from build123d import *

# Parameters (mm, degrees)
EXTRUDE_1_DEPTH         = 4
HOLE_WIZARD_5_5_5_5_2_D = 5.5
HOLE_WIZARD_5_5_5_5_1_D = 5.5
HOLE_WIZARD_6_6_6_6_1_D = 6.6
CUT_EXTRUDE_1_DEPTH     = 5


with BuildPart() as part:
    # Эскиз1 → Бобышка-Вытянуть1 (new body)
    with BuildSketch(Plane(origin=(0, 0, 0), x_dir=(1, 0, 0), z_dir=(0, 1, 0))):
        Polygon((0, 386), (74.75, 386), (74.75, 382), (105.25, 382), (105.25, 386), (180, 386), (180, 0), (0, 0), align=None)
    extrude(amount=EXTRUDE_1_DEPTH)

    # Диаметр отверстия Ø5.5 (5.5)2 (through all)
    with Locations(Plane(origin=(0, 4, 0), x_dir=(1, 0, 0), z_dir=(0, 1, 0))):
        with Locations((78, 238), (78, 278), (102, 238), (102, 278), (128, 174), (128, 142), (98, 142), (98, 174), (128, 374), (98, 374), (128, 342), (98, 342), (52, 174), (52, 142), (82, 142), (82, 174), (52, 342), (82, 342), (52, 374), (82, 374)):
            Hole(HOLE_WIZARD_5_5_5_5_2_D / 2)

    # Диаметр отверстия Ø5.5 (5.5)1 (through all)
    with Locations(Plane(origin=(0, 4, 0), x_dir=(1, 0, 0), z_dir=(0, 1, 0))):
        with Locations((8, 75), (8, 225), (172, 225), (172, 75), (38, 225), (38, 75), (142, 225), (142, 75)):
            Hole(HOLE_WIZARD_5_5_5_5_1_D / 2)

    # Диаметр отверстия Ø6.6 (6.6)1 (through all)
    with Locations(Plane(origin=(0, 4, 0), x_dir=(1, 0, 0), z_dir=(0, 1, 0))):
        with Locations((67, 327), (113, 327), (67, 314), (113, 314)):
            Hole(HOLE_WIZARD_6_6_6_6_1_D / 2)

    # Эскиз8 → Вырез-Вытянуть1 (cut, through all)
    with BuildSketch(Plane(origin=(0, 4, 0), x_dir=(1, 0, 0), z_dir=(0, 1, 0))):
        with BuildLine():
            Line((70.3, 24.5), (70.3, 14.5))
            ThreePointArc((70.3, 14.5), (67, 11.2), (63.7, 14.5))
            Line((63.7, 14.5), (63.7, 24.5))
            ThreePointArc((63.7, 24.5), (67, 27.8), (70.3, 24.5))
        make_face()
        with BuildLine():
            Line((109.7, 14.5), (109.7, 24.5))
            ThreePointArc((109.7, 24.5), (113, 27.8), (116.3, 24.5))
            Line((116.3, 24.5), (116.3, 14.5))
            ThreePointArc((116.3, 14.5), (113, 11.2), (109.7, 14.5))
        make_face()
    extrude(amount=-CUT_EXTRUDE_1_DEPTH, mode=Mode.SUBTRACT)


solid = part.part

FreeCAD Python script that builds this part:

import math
import FreeCAD as App
import Part
import Sketcher

V = App.Vector


def add_polygon(sketch, points):
    """Adds a closed chain of lines whose ends are joined by coincident constraints."""
    first, n = sketch.GeometryCount, len(points)
    for a, b in zip(points, points[1:] + points[:1]):
        sketch.addGeometry(Part.LineSegment(App.Vector(*a, 0), App.Vector(*b, 0)), False)
    for i in range(n):
        sketch.addConstraint(Sketcher.Constraint("Coincident", first + i, 2, first + (i + 1) % n, 1))

doc = App.newDocument("Part")
body = doc.addObject("PartDesign::Body", "Body")

# Sketch on XZ plane
sketch1 = body.newObject("Sketcher::SketchObject", "Sketch")
sketch1.AttachmentSupport = (doc.getObject("XZ_Plane"), [""])
sketch1.MapMode = "FlatFace"
add_polygon(sketch1, [(74.8, -386), (0, -386), (0, 0), (180, 0), (180, -386), (105.2, -386), (105.2, -382), (74.8, -382)])  # lines 0-7
sketch1.addConstraint([
    Sketcher.Constraint("Horizontal", 0),
    Sketcher.Constraint("Vertical", 1),
    Sketcher.Constraint("Horizontal", 2),
    Sketcher.Constraint("Vertical", 3),
    Sketcher.Constraint("Horizontal", 4),
    Sketcher.Constraint("Vertical", 5),
    Sketcher.Constraint("Horizontal", 6),
    Sketcher.Constraint("Vertical", 7),
    Sketcher.Constraint("Coincident", 1, 2, -1, 1),
    Sketcher.Constraint("Horizontal", 0, 2, 3, 2),
    Sketcher.Constraint("Equal", 0, 4),
    Sketcher.Constraint("DistanceX", 2, 1, 2, 2, 180.0),
    Sketcher.Constraint("DistanceY", 1, 1, 1, 2, 386.0),
    Sketcher.Constraint("DistanceY", 5, 1, 5, 2, 4.0),
    Sketcher.Constraint("DistanceX", 6, 2, 6, 1, 30.5),
])
pad1 = body.newObject("PartDesign::Pad", "Pad")
pad1.Profile = sketch1
pad1.Length = 4
pad1.Reversed = True

# Sketch on XZ plane
sketch2 = body.newObject("Sketcher::SketchObject", "Sketch001")
sketch2.AttachmentSupport = (doc.getObject("XZ_Plane"), [""])
sketch2.MapMode = "FlatFace"
sketch2.AttachmentOffset = App.Placement(V(0, 0, -4), App.Rotation())
sketch2.addGeometry([
    Part.Circle(V(78, -238, 0), V(0, 0, 1), 2.8),  # 0
    Part.Circle(V(78, -278, 0), V(0, 0, 1), 2.8),  # 1
    Part.Circle(V(102, -238, 0), V(0, 0, 1), 2.8),  # 2
    Part.Circle(V(102, -278, 0), V(0, 0, 1), 2.8),  # 3
    Part.Circle(V(128, -174, 0), V(0, 0, 1), 2.8),  # 4
    Part.Circle(V(128, -142, 0), V(0, 0, 1), 2.8),  # 5
    Part.Circle(V(98, -142, 0), V(0, 0, 1), 2.8),  # 6
    Part.Circle(V(98, -174, 0), V(0, 0, 1), 2.8),  # 7
    Part.Circle(V(128, -374, 0), V(0, 0, 1), 2.8),  # 8
    Part.Circle(V(98, -374, 0), V(0, 0, 1), 2.8),  # 9
    Part.Circle(V(128, -342, 0), V(0, 0, 1), 2.8),  # 10
    Part.Circle(V(98, -342, 0), V(0, 0, 1), 2.8),  # 11
    Part.Circle(V(52, -174, 0), V(0, 0, 1), 2.8),  # 12
    Part.Circle(V(52, -142, 0), V(0, 0, 1), 2.8),  # 13
    Part.Circle(V(82, -142, 0), V(0, 0, 1), 2.8),  # 14
    Part.Circle(V(82, -174, 0), V(0, 0, 1), 2.8),  # 15
    Part.Circle(V(52, -342, 0), V(0, 0, 1), 2.8),  # 16
    Part.Circle(V(82, -342, 0), V(0, 0, 1), 2.8),  # 17
    Part.Circle(V(52, -374, 0), V(0, 0, 1), 2.8),  # 18
    Part.Circle(V(82, -374, 0), V(0, 0, 1), 2.8),  # 19
], False)
sketch2.addConstraint([
    Sketcher.Constraint("Equal", 0, 1),
    Sketcher.Constraint("Equal", 1, 2),
    Sketcher.Constraint("Equal", 2, 3),
    Sketcher.Constraint("Equal", 3, 4),
    Sketcher.Constraint("Equal", 4, 5),
    Sketcher.Constraint("Equal", 5, 6),
    Sketcher.Constraint("Equal", 6, 7),
    Sketcher.Constraint("Equal", 7, 8),
    Sketcher.Constraint("Equal", 8, 9),
    Sketcher.Constraint("Equal", 9, 10),
    Sketcher.Constraint("Equal", 10, 11),
    Sketcher.Constraint("Equal", 11, 12),
    Sketcher.Constraint("Equal", 12, 13),
    Sketcher.Constraint("Equal", 13, 14),
    Sketcher.Constraint("Equal", 14, 15),
    Sketcher.Constraint("Equal", 15, 16),
    Sketcher.Constraint("Equal", 16, 17),
    Sketcher.Constraint("Equal", 17, 18),
    Sketcher.Constraint("Equal", 18, 19),
    Sketcher.Constraint("Horizontal", 0, 3, 2, 3),
    Sketcher.Constraint("Horizontal", 1, 3, 3, 3),
    Sketcher.Constraint("Horizontal", 5, 3, 6, 3),
    Sketcher.Constraint("Horizontal", 4, 3, 7, 3),
    Sketcher.Constraint("Horizontal", 8, 3, 9, 3),
    Sketcher.Constraint("Horizontal", 10, 3, 11, 3),
    Sketcher.Constraint("Horizontal", 7, 3, 12, 3),
    Sketcher.Constraint("Horizontal", 6, 3, 13, 3),
    Sketcher.Constraint("Horizontal", 13, 3, 14, 3),
    Sketcher.Constraint("Horizontal", 12, 3, 15, 3),
    Sketcher.Constraint("Horizontal", 11, 3, 16, 3),
    Sketcher.Constraint("Horizontal", 16, 3, 17, 3),
    Sketcher.Constraint("Horizontal", 9, 3, 18, 3),
    Sketcher.Constraint("Horizontal", 18, 3, 19, 3),
    Sketcher.Constraint("Vertical", 0, 3, 1, 3),
    Sketcher.Constraint("Vertical", 2, 3, 3, 3),
    Sketcher.Constraint("Vertical", 4, 3, 5, 3),
    Sketcher.Constraint("Vertical", 6, 3, 7, 3),
    Sketcher.Constraint("Vertical", 5, 3, 8, 3),
    Sketcher.Constraint("Vertical", 7, 3, 9, 3),
    Sketcher.Constraint("Vertical", 8, 3, 10, 3),
    Sketcher.Constraint("Vertical", 9, 3, 11, 3),
    Sketcher.Constraint("Vertical", 12, 3, 13, 3),
    Sketcher.Constraint("Vertical", 14, 3, 15, 3),
    Sketcher.Constraint("Vertical", 13, 3, 16, 3),
    Sketcher.Constraint("Vertical", 15, 3, 17, 3),
    Sketcher.Constraint("Vertical", 16, 3, 18, 3),
    Sketcher.Constraint("Vertical", 17, 3, 19, 3),
    Sketcher.Constraint("Diameter", 0, 5.5),
    Sketcher.Constraint("DistanceX", -1, 1, 0, 3, 78.0),
    Sketcher.Constraint("DistanceY", 0, 3, -1, 1, 238.0),
    Sketcher.Constraint("DistanceY", 1, 3, -1, 1, 278.0),
    Sketcher.Constraint("DistanceX", -1, 1, 2, 3, 102.0),
    Sketcher.Constraint("DistanceX", -1, 1, 4, 3, 128.0),
    Sketcher.Constraint("DistanceY", 4, 3, -1, 1, 174.0),
    Sketcher.Constraint("DistanceY", 5, 3, -1, 1, 142.0),
    Sketcher.Constraint("DistanceX", -1, 1, 6, 3, 98.0),
    Sketcher.Constraint("DistanceY", 8, 3, -1, 1, 374.0),
    Sketcher.Constraint("DistanceY", 10, 3, -1, 1, 342.0),
    Sketcher.Constraint("DistanceX", -1, 1, 12, 3, 52.0),
    Sketcher.Constraint("DistanceX", -1, 1, 14, 3, 82.0),
])
doc.recompute()
hole = body.newObject("PartDesign::Hole", "Hole")
hole.Profile = sketch2
hole.ThreadType = "None"
hole.Diameter = 5.5
hole.DepthType = "ThroughAll"
hole.Reversed = True

# Sketch on XZ plane
sketch3 = body.newObject("Sketcher::SketchObject", "Sketch002")
sketch3.AttachmentSupport = (doc.getObject("XZ_Plane"), [""])
sketch3.MapMode = "FlatFace"
sketch3.AttachmentOffset = App.Placement(V(0, 0, -4), App.Rotation())
sketch3.addGeometry([
    Part.Circle(V(8, -75, 0), V(0, 0, 1), 2.8),  # 0
    Part.Circle(V(8, -225, 0), V(0, 0, 1), 2.8),  # 1
    Part.Circle(V(172, -225, 0), V(0, 0, 1), 2.8),  # 2
    Part.Circle(V(172, -75, 0), V(0, 0, 1), 2.8),  # 3
    Part.Circle(V(38, -225, 0), V(0, 0, 1), 2.8),  # 4
    Part.Circle(V(38, -75, 0), V(0, 0, 1), 2.8),  # 5
    Part.Circle(V(142, -225, 0), V(0, 0, 1), 2.8),  # 6
    Part.Circle(V(142, -75, 0), V(0, 0, 1), 2.8),  # 7
], False)
sketch3.addConstraint([
    Sketcher.Constraint("Equal", 0, 1),
    Sketcher.Constraint("Equal", 1, 2),
    Sketcher.Constraint("Equal", 2, 3),
    Sketcher.Constraint("Equal", 3, 4),
    Sketcher.Constraint("Equal", 4, 5),
    Sketcher.Constraint("Equal", 5, 6),
    Sketcher.Constraint("Equal", 6, 7),
    Sketcher.Constraint("Horizontal", 1, 3, 2, 3),
    Sketcher.Constraint("Horizontal", 0, 3, 3, 3),
    Sketcher.Constraint("Horizontal", 2, 3, 4, 3),
    Sketcher.Constraint("Horizontal", 3, 3, 5, 3),
    Sketcher.Constraint("Horizontal", 4, 3, 6, 3),
    Sketcher.Constraint("Horizontal", 5, 3, 7, 3),
    Sketcher.Constraint("Vertical", 0, 3, 1, 3),
    Sketcher.Constraint("Vertical", 2, 3, 3, 3),
    Sketcher.Constraint("Vertical", 4, 3, 5, 3),
    Sketcher.Constraint("Vertical", 6, 3, 7, 3),
    Sketcher.Constraint("Diameter", 0, 5.5),
    Sketcher.Constraint("DistanceX", -1, 1, 0, 3, 8.0),
    Sketcher.Constraint("DistanceY", 0, 3, -1, 1, 75.0),
    Sketcher.Constraint("DistanceY", 1, 3, -1, 1, 225.0),
    Sketcher.Constraint("DistanceX", -1, 1, 2, 3, 172.0),
    Sketcher.Constraint("DistanceX", -1, 1, 4, 3, 38.0),
    Sketcher.Constraint("DistanceX", -1, 1, 6, 3, 142.0),
])
doc.recompute()
hole2 = body.newObject("PartDesign::Hole", "Hole001")
hole2.Profile = sketch3
hole2.ThreadType = "None"
hole2.Diameter = 5.5
hole2.DepthType = "ThroughAll"
hole2.Reversed = True

# Sketch on XZ plane
sketch4 = body.newObject("Sketcher::SketchObject", "Sketch003")
sketch4.AttachmentSupport = (doc.getObject("XZ_Plane"), [""])
sketch4.MapMode = "FlatFace"
sketch4.AttachmentOffset = App.Placement(V(0, 0, -4), App.Rotation())
sketch4.addGeometry([
    Part.Circle(V(67, -327, 0), V(0, 0, 1), 3.3),
    Part.Circle(V(113, -327, 0), V(0, 0, 1), 3.3),
    Part.Circle(V(67, -314, 0), V(0, 0, 1), 3.3),
    Part.Circle(V(113, -314, 0), V(0, 0, 1), 3.3),
], False)
sketch4.addConstraint([
    Sketcher.Constraint("Equal", 0, 1),
    Sketcher.Constraint("Equal", 1, 2),
    Sketcher.Constraint("Equal", 2, 3),
    Sketcher.Constraint("Horizontal", 0, 3, 1, 3),
    Sketcher.Constraint("Horizontal", 2, 3, 3, 3),
    Sketcher.Constraint("Vertical", 0, 3, 2, 3),
    Sketcher.Constraint("Vertical", 1, 3, 3, 3),
    Sketcher.Constraint("Diameter", 0, 6.6),
    Sketcher.Constraint("DistanceX", -1, 1, 0, 3, 67.0),
    Sketcher.Constraint("DistanceY", 0, 3, -1, 1, 327.0),
    Sketcher.Constraint("DistanceX", -1, 1, 1, 3, 113.0),
    Sketcher.Constraint("DistanceY", 2, 3, -1, 1, 314.0),
])
doc.recompute()
hole3 = body.newObject("PartDesign::Hole", "Hole002")
hole3.Profile = sketch4
hole3.ThreadType = "None"
hole3.Diameter = 6.6
hole3.DepthType = "ThroughAll"
hole3.Reversed = True

# Sketch on XZ plane
sketch5 = body.newObject("Sketcher::SketchObject", "Sketch004")
sketch5.AttachmentSupport = (doc.getObject("XZ_Plane"), [""])
sketch5.MapMode = "FlatFace"
sketch5.AttachmentOffset = App.Placement(V(0, 0, -4), App.Rotation())
sketch5.addGeometry([
    Part.LineSegment(V(70.3, -14.5, 0), V(70.3, -24.5, 0)),  # 0
    Part.ArcOfCircle(Part.Circle(V(67, -24.5, 0), V(0, 0, 1), 3.3), math.radians(180), math.radians(360)),  # 1
    Part.LineSegment(V(63.7, -24.5, 0), V(63.7, -14.5, 0)),  # 2
    Part.ArcOfCircle(Part.Circle(V(67, -14.5, 0), V(0, 0, 1), 3.3), math.radians(0), math.radians(180)),  # 3
    Part.LineSegment(V(109.7, -24.5, 0), V(109.7, -14.5, 0)),  # 4
    Part.ArcOfCircle(Part.Circle(V(113, -14.5, 0), V(0, 0, 1), 3.3), math.radians(0), math.radians(180)),  # 5
    Part.LineSegment(V(116.3, -14.5, 0), V(116.3, -24.5, 0)),  # 6
    Part.ArcOfCircle(Part.Circle(V(113, -24.5, 0), V(0, 0, 1), 3.3), math.radians(180), math.radians(360)),  # 7
], False)
sketch5.addConstraint([
    Sketcher.Constraint("Tangent", 0, 2, 1, 2),
    Sketcher.Constraint("Tangent", 1, 1, 2, 1),
    Sketcher.Constraint("Tangent", 2, 2, 3, 2),
    Sketcher.Constraint("Tangent", 3, 1, 0, 1),
    Sketcher.Constraint("Tangent", 4, 2, 5, 2),
    Sketcher.Constraint("Tangent", 5, 1, 6, 1),
    Sketcher.Constraint("Tangent", 6, 2, 7, 2),
    Sketcher.Constraint("Tangent", 7, 1, 4, 1),
    Sketcher.Constraint("Vertical", 0),
    Sketcher.Constraint("Vertical", 2),
    Sketcher.Constraint("Vertical", 4),
    Sketcher.Constraint("Vertical", 6),
    Sketcher.Constraint("Equal", 3, 5),
    Sketcher.Constraint("Horizontal", 3, 3, 5, 3),
    Sketcher.Constraint("Horizontal", 1, 3, 7, 3),
    Sketcher.Constraint("Radius", 1, 3.3),
    Sketcher.Constraint("DistanceY", 0, 2, 0, 1, 10.0),
    Sketcher.Constraint("DistanceX", -1, 1, 1, 3, 67.0),
    Sketcher.Constraint("DistanceX", -1, 1, 5, 3, 113.0),
    Sketcher.Constraint("DistanceY", 1, 3, -1, 1, 24.5),
])
pocket1 = body.newObject("PartDesign::Pocket", "Pocket")
pocket1.Profile = sketch5
pocket1.Type = "ThroughAll"
pocket1.Reversed = True

doc.recompute()
